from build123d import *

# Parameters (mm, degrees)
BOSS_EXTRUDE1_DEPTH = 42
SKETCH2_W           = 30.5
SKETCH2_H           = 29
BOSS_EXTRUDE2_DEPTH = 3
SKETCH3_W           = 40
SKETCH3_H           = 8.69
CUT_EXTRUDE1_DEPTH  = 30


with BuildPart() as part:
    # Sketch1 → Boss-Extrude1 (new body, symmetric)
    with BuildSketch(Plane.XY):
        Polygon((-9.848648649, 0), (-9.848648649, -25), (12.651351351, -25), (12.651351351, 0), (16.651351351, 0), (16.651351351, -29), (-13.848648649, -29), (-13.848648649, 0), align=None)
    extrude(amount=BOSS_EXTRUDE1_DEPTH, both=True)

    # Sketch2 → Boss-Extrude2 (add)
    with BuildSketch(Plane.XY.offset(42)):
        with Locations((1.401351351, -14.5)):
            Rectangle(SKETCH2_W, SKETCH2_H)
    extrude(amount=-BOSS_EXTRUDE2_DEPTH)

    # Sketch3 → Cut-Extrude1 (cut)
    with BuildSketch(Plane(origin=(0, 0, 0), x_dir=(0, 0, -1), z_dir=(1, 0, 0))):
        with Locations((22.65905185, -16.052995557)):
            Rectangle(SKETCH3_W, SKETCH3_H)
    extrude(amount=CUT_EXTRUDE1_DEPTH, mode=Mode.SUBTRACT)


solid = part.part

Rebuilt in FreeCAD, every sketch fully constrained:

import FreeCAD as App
import Part
import Sketcher

V = App.Vector
Q = App.Units.Quantity


def add_polygon(sketch, points):
    """Adds a closed chain of lines whose ends are joined by coincident constraints."""
    first, n = sketch.GeometryCount, len(points)
    for a, b in zip(points, points[1:] + points[:1]):
        sketch.addGeometry(Part.LineSegment(App.Vector(*a, 0), App.Vector(*b, 0)), False)
    for i in range(n):
        sketch.addConstraint(Sketcher.Constraint("Coincident", first + i, 2, first + (i + 1) % n, 1))

doc = App.newDocument("Part")
body = doc.addObject("PartDesign::Body", "Body")

sketch1 = doc.addObject("Sketcher::SketchObject", "Sketch")
body.addObject(sketch1)
sketch1.AttachmentSupport = (doc.XY_Plane, [""])
sketch1.MapMode = "FlatFace"
add_polygon(sketch1, [(-9.8, -25), (-9.8, 0), (-13.8, 0), (-13.8, -29), (16.7, -29), (16.7, 0), (12.7, 0), (12.7, -25)])
sketch1.addConstraint([
    Sketcher.Constraint("Vertical", 0),
    Sketcher.Constraint("Horizontal", 1),
    Sketcher.Constraint("Vertical", 2),
    Sketcher.Constraint("Horizontal", 3),
    Sketcher.Constraint("Vertical", 4),
    Sketcher.Constraint("Horizontal", 5),
    Sketcher.Constraint("Vertical", 6),
    Sketcher.Constraint("Horizontal", 7),
    Sketcher.Constraint("PointOnObject", 0, 2, -1),
    Sketcher.Constraint("PointOnObject", 4, 2, -1),
    Sketcher.Constraint("Equal", 1, 5),
    Sketcher.Constraint("DistanceX", 1, 2, 1, 1, Q("4 mm")),
    Sketcher.Constraint("DistanceY", 0, 1, 0, 2, Q("25 mm")),
    Sketcher.Constraint("DistanceY", 2, 2, 2, 1, Q("29 mm")),
    Sketcher.Constraint("DistanceX", 3, 1, 3, 2, Q("30.5 mm")),
    Sketcher.Constraint("DistanceX", 0, 2, -1, 1, Q("9.848649 mm")),
])
pad1 = doc.addObject("PartDesign::Pad", "Pad")
body.addObject(pad1)
pad1.Profile = sketch1
pad1.Length = 84
pad1.Midplane = True

sketch2 = doc.addObject("Sketcher::SketchObject", "Sketch001")
body.addObject(sketch2)
sketch2.AttachmentSupport = (doc.XY_Plane, [""])
sketch2.MapMode = "FlatFace"
sketch2.AttachmentOffset = App.Placement(V(0, 0, 42), App.Rotation())
add_polygon(sketch2, [(-14, 0), (-14, -29), (17, -29), (17, 0)])
sketch2.addConstraint([
    Sketcher.Constraint("Vertical", 0),
    Sketcher.Constraint("Horizontal", 1),
    Sketcher.Constraint("Vertical", 2),
    Sketcher.Constraint("Horizontal", 3),
    Sketcher.Constraint("PointOnObject", 2, 2, -1),
    Sketcher.Constraint("DistanceY", 0, 2, 0, 1, Q("29 mm")),
    Sketcher.Constraint("DistanceX", 1, 1, 1, 2, Q("30.5 mm")),
    Sketcher.Constraint("DistanceX", 0, 2, -1, 1, Q("13.848649 mm")),
])
pad2 = doc.addObject("PartDesign::Pad", "Pad001")
body.addObject(pad2)
pad2.Profile = sketch2
pad2.Length = 3
pad2.Reversed = True

sketch3 = doc.addObject("Sketcher::SketchObject", "Sketch002")
body.addObject(sketch3)
sketch3.AttachmentSupport = (doc.YZ_Plane, [""])
sketch3.MapMode = "FlatFace"
add_polygon(sketch3, [(-12, -3), (-20, -3), (-20, -43), (-12, -43)])
sketch3.addConstraint([
    Sketcher.Constraint("Horizontal", 0),
    Sketcher.Constraint("Vertical", 1),
    Sketcher.Constraint("Horizontal", 2),
    Sketcher.Constraint("Vertical", 3),
    Sketcher.Constraint("DistanceY", 1, 2, 1, 1, Q("40 mm")),
    Sketcher.Constraint("DistanceX", 0, 2, 0, 1, Q("8.69 mm")),
    Sketcher.Constraint("DistanceY", 0, 2, -1, 1, Q("2.659052 mm")),
    Sketcher.Constraint("DistanceX", 0, 2, -1, 1, Q("20.397996 mm")),
])
pocket1 = doc.addObject("PartDesign::Pocket", "Pocket")
body.addObject(pocket1)
pocket1.Profile = sketch3
pocket1.Length = 30
pocket1.Reversed = True

doc.recompute()
